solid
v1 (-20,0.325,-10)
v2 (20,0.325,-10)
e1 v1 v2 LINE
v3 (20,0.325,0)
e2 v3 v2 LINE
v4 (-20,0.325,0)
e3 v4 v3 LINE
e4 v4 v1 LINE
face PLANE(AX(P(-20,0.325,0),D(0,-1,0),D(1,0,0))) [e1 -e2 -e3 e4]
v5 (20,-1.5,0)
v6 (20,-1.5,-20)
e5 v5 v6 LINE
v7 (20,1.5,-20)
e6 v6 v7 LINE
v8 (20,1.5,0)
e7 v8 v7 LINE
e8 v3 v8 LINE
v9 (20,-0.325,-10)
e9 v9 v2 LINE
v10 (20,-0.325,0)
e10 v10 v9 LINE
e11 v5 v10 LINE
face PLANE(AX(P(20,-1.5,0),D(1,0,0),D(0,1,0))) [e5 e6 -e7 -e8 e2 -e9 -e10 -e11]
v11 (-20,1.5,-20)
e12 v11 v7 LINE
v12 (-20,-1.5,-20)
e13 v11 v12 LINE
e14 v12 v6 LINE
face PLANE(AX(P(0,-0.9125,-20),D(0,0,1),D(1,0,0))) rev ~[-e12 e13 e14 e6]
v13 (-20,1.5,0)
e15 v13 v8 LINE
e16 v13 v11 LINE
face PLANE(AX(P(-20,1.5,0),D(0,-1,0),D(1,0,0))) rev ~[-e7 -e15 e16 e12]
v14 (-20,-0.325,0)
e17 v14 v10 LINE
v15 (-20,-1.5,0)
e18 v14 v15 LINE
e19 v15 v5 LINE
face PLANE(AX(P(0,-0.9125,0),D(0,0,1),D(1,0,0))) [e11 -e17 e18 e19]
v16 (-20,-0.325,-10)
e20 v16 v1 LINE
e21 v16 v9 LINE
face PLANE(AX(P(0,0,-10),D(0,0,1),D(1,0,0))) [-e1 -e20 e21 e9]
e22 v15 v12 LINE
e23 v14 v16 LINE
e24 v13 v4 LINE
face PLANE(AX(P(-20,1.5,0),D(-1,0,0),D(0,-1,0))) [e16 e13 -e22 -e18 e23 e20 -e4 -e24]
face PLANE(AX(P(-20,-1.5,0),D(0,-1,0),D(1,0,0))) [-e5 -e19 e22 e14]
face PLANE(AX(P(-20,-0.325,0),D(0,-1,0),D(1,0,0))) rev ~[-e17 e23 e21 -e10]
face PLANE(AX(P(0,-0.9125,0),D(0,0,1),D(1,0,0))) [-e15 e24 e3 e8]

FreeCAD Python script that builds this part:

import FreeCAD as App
import Part
import Sketcher
from FreeCAD import Vector

doc = App.newDocument("Part")
body = doc.addObject("PartDesign::Body", "Body")

sketch1 = body.newObject("Sketcher::SketchObject", "Sketch")
sketch1.AttachmentSupport = (doc.getObject("XY_Plane"), [""])
sketch1.MapMode = "FlatFace"
sketch1.addGeometry([
    Part.LineSegment(Vector(-20, -1.5, 0), Vector(20, -1.5, 0)),
    Part.LineSegment(Vector(20, -1.5, 0), Vector(20, 1.5, 0)),
    Part.LineSegment(Vector(20, 1.5, 0), Vector(-20, 1.5, 0)),
    Part.LineSegment(Vector(-20, 1.5, 0), Vector(-20, -1.5, 0)),
], False)
sketch1.addConstraint([
    Sketcher.Constraint("Coincident", 0, 2, 1, 1),
    Sketcher.Constraint("Coincident", 1, 2, 2, 1),
    Sketcher.Constraint("Coincident", 2, 2, 3, 1),
    Sketcher.Constraint("Coincident", 3, 2, 0, 1),
    Sketcher.Constraint("Horizontal", 0),
    Sketcher.Constraint("Vertical", 1),
    Sketcher.Constraint("Horizontal", 2),
    Sketcher.Constraint("Vertical", 3),
    Sketcher.Constraint("Symmetric", 0, 2, 2, 2, -1, 1),
    Sketcher.Constraint("DistanceX", 0, 1, 0, 2, 40.0),
    Sketcher.Constraint("DistanceY", 1, 1, 1, 2, 3.0),
])
pad1 = body.newObject("PartDesign::Pad", "Pad")
pad1.Profile = sketch1
pad1.Length = 20
pad1.Reversed = True

sketch2 = body.newObject("Sketcher::SketchObject", "Sketch001")
sketch2.AttachmentSupport = (doc.getObject("XY_Plane"), [""])
sketch2.MapMode = "FlatFace"
sketch2.addGeometry([
    Part.LineSegment(Vector(-20, 0.325, 0), Vector(-20, -0.325, 0)),
    Part.LineSegment(Vector(-20, -0.325, 0), Vector(20, -0.325, 0)),
    Part.LineSegment(Vector(20, -0.325, 0), Vector(20, 0.325, 0)),
    Part.LineSegment(Vector(20, 0.325, 0), Vector(-20, 0.325, 0)),
], False)
sketch2.addConstraint([
    Sketcher.Constraint("Coincident", 0, 2, 1, 1),
    Sketcher.Constraint("Coincident", 1, 2, 2, 1),
    Sketcher.Constraint("Coincident", 2, 2, 3, 1),
    Sketcher.Constraint("Coincident", 3, 2, 0, 1),
    Sketcher.Constraint("Vertical", 0),
    Sketcher.Constraint("Horizontal", 1),
    Sketcher.Constraint("Vertical", 2),
    Sketcher.Constraint("Horizontal", 3),
    Sketcher.Constraint("Symmetric", 0, 2, 2, 2, -1, 1),
    Sketcher.Constraint("DistanceX", 1, 1, 1, 2, 40.0),
    Sketcher.Constraint("DistanceY", 0, 2, 0, 1, 0.65),
])
pocket1 = body.newObject("PartDesign::Pocket", "Pocket")
pocket1.Profile = sketch2
pocket1.Length = 10

doc.recompute()
